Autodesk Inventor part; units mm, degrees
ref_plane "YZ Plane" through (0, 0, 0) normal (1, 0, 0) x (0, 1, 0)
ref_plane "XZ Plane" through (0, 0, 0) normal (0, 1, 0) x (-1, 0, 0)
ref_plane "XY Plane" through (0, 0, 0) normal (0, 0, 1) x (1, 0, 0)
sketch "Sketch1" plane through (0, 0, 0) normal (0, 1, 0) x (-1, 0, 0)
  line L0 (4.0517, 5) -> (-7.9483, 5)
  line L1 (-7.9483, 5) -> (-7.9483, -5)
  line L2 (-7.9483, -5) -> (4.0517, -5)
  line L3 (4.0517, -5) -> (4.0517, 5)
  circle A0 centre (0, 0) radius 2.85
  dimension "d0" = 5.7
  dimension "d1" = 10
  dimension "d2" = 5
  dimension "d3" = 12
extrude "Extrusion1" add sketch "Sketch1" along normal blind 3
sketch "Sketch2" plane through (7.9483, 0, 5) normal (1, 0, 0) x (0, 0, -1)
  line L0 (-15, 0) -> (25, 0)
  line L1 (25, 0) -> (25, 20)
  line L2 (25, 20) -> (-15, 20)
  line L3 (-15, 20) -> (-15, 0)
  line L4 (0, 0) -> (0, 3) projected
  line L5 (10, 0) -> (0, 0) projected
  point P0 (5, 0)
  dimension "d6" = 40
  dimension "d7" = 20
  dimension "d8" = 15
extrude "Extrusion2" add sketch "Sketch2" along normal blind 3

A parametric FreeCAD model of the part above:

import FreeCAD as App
import Part
import Sketcher


def add_polygon(sketch, points):
    """Adds a closed chain of lines whose ends are joined by coincident constraints."""
    first, n = sketch.GeometryCount, len(points)
    for a, b in zip(points, points[1:] + points[:1]):
        sketch.addGeometry(Part.LineSegment(App.Vector(*a, 0), App.Vector(*b, 0)), False)
    for i in range(n):
        sketch.addConstraint(Sketcher.Constraint("Coincident", first + i, 2, first + (i + 1) % n, 1))

doc = App.newDocument("Part")
params = doc.addObject("Spreadsheet::Sheet", "Params")
for row, (alias, value) in enumerate([
    ("sketch1_diameter", "5.7 mm"),
    ("sketch1_width", "12 mm"),
    ("sketch1_height", "10 mm"),
    ("pad1_length", "3 mm"),
    ("sketch2_width", "20 mm"),
    ("sketch2_height", "40 mm"),
    ("pad2_length", "3 mm"),
], start=1):
    params.set(f"A{row}", alias)
    params.set(f"B{row}", "=" + value)
    params.setAlias(f"B{row}", alias)

body = doc.addObject("PartDesign::Body", "Body")

sketch1 = body.newObject("Sketcher::SketchObject", "Sketch")
sketch1.AttachmentSupport = (doc.getObject("XZ_Plane"), [""])
sketch1.MapMode = "FlatFace"
add_polygon(sketch1, [(-4.0517, -5), (-4.0517, 5), (7.9483, 5), (7.9483, -5)])
sketch1.addGeometry(Part.Circle(App.Vector(0, 0, 0), App.Vector(0, 0, 1), 2.85), False)
sketch1.addConstraint(Sketcher.Constraint("Vertical", 0))
sketch1.addConstraint(Sketcher.Constraint("Horizontal", 1))
sketch1.addConstraint(Sketcher.Constraint("Vertical", 2))
sketch1.addConstraint(Sketcher.Constraint("Horizontal", 3))
sketch1.addConstraint(Sketcher.Constraint("Coincident", 4, 3, -1, 1))
sketch1.addConstraint(Sketcher.Constraint("Diameter", 4, 5.7))
sketch1.addConstraint(Sketcher.Constraint("DistanceX", 1, 1, 1, 2, 12.0))
sketch1.addConstraint(Sketcher.Constraint("DistanceY", 0, 1, 0, 2, 10.0))
sketch1.addConstraint(Sketcher.Constraint("DistanceY", -1, 1, 0, 2, 5.0))
sketch1.addConstraint(Sketcher.Constraint("DistanceX", 0, 2, -1, 1, 4.0517))
sketch1.setExpression("Constraints[9]", "Params.sketch1_diameter")
sketch1.setExpression("Constraints[10]", "Params.sketch1_width")
sketch1.setExpression("Constraints[11]", "Params.sketch1_height")
pad1 = body.newObject("PartDesign::Pad", "Pad")
pad1.Profile = sketch1
pad1.setExpression("Length", "Params.pad1_length")
pad1.Reversed = True

sketch2 = body.newObject("Sketcher::SketchObject", "Sketch001")
sketch2.AttachmentSupport = (doc.getObject("YZ_Plane"), [""])
sketch2.MapMode = "FlatFace"
sketch2.AttachmentOffset = App.Placement(App.Vector(0, 0, 7.9483), App.Rotation())
add_polygon(sketch2, [(20, 20), (0, 20), (0, -20), (20, -20)])
sketch2.addConstraint(Sketcher.Constraint("Horizontal", 0))
sketch2.addConstraint(Sketcher.Constraint("Vertical", 1))
sketch2.addConstraint(Sketcher.Constraint("Horizontal", 2))
sketch2.addConstraint(Sketcher.Constraint("Vertical", 3))
sketch2.addConstraint(Sketcher.Constraint("Symmetric", 0, 2, 1, 2, -1, 1))
sketch2.addConstraint(Sketcher.Constraint("DistanceX", 0, 2, 0, 1, 20.0))
sketch2.addConstraint(Sketcher.Constraint("DistanceY", 1, 2, 1, 1, 40.0))
sketch2.setExpression("Constraints[9]", "Params.sketch2_width")
sketch2.setExpression("Constraints[10]", "Params.sketch2_height")
pad2 = body.newObject("PartDesign::Pad", "Pad001")
pad2.Profile = sketch2
pad2.setExpression("Length", "Params.pad2_length")

doc.recompute()
